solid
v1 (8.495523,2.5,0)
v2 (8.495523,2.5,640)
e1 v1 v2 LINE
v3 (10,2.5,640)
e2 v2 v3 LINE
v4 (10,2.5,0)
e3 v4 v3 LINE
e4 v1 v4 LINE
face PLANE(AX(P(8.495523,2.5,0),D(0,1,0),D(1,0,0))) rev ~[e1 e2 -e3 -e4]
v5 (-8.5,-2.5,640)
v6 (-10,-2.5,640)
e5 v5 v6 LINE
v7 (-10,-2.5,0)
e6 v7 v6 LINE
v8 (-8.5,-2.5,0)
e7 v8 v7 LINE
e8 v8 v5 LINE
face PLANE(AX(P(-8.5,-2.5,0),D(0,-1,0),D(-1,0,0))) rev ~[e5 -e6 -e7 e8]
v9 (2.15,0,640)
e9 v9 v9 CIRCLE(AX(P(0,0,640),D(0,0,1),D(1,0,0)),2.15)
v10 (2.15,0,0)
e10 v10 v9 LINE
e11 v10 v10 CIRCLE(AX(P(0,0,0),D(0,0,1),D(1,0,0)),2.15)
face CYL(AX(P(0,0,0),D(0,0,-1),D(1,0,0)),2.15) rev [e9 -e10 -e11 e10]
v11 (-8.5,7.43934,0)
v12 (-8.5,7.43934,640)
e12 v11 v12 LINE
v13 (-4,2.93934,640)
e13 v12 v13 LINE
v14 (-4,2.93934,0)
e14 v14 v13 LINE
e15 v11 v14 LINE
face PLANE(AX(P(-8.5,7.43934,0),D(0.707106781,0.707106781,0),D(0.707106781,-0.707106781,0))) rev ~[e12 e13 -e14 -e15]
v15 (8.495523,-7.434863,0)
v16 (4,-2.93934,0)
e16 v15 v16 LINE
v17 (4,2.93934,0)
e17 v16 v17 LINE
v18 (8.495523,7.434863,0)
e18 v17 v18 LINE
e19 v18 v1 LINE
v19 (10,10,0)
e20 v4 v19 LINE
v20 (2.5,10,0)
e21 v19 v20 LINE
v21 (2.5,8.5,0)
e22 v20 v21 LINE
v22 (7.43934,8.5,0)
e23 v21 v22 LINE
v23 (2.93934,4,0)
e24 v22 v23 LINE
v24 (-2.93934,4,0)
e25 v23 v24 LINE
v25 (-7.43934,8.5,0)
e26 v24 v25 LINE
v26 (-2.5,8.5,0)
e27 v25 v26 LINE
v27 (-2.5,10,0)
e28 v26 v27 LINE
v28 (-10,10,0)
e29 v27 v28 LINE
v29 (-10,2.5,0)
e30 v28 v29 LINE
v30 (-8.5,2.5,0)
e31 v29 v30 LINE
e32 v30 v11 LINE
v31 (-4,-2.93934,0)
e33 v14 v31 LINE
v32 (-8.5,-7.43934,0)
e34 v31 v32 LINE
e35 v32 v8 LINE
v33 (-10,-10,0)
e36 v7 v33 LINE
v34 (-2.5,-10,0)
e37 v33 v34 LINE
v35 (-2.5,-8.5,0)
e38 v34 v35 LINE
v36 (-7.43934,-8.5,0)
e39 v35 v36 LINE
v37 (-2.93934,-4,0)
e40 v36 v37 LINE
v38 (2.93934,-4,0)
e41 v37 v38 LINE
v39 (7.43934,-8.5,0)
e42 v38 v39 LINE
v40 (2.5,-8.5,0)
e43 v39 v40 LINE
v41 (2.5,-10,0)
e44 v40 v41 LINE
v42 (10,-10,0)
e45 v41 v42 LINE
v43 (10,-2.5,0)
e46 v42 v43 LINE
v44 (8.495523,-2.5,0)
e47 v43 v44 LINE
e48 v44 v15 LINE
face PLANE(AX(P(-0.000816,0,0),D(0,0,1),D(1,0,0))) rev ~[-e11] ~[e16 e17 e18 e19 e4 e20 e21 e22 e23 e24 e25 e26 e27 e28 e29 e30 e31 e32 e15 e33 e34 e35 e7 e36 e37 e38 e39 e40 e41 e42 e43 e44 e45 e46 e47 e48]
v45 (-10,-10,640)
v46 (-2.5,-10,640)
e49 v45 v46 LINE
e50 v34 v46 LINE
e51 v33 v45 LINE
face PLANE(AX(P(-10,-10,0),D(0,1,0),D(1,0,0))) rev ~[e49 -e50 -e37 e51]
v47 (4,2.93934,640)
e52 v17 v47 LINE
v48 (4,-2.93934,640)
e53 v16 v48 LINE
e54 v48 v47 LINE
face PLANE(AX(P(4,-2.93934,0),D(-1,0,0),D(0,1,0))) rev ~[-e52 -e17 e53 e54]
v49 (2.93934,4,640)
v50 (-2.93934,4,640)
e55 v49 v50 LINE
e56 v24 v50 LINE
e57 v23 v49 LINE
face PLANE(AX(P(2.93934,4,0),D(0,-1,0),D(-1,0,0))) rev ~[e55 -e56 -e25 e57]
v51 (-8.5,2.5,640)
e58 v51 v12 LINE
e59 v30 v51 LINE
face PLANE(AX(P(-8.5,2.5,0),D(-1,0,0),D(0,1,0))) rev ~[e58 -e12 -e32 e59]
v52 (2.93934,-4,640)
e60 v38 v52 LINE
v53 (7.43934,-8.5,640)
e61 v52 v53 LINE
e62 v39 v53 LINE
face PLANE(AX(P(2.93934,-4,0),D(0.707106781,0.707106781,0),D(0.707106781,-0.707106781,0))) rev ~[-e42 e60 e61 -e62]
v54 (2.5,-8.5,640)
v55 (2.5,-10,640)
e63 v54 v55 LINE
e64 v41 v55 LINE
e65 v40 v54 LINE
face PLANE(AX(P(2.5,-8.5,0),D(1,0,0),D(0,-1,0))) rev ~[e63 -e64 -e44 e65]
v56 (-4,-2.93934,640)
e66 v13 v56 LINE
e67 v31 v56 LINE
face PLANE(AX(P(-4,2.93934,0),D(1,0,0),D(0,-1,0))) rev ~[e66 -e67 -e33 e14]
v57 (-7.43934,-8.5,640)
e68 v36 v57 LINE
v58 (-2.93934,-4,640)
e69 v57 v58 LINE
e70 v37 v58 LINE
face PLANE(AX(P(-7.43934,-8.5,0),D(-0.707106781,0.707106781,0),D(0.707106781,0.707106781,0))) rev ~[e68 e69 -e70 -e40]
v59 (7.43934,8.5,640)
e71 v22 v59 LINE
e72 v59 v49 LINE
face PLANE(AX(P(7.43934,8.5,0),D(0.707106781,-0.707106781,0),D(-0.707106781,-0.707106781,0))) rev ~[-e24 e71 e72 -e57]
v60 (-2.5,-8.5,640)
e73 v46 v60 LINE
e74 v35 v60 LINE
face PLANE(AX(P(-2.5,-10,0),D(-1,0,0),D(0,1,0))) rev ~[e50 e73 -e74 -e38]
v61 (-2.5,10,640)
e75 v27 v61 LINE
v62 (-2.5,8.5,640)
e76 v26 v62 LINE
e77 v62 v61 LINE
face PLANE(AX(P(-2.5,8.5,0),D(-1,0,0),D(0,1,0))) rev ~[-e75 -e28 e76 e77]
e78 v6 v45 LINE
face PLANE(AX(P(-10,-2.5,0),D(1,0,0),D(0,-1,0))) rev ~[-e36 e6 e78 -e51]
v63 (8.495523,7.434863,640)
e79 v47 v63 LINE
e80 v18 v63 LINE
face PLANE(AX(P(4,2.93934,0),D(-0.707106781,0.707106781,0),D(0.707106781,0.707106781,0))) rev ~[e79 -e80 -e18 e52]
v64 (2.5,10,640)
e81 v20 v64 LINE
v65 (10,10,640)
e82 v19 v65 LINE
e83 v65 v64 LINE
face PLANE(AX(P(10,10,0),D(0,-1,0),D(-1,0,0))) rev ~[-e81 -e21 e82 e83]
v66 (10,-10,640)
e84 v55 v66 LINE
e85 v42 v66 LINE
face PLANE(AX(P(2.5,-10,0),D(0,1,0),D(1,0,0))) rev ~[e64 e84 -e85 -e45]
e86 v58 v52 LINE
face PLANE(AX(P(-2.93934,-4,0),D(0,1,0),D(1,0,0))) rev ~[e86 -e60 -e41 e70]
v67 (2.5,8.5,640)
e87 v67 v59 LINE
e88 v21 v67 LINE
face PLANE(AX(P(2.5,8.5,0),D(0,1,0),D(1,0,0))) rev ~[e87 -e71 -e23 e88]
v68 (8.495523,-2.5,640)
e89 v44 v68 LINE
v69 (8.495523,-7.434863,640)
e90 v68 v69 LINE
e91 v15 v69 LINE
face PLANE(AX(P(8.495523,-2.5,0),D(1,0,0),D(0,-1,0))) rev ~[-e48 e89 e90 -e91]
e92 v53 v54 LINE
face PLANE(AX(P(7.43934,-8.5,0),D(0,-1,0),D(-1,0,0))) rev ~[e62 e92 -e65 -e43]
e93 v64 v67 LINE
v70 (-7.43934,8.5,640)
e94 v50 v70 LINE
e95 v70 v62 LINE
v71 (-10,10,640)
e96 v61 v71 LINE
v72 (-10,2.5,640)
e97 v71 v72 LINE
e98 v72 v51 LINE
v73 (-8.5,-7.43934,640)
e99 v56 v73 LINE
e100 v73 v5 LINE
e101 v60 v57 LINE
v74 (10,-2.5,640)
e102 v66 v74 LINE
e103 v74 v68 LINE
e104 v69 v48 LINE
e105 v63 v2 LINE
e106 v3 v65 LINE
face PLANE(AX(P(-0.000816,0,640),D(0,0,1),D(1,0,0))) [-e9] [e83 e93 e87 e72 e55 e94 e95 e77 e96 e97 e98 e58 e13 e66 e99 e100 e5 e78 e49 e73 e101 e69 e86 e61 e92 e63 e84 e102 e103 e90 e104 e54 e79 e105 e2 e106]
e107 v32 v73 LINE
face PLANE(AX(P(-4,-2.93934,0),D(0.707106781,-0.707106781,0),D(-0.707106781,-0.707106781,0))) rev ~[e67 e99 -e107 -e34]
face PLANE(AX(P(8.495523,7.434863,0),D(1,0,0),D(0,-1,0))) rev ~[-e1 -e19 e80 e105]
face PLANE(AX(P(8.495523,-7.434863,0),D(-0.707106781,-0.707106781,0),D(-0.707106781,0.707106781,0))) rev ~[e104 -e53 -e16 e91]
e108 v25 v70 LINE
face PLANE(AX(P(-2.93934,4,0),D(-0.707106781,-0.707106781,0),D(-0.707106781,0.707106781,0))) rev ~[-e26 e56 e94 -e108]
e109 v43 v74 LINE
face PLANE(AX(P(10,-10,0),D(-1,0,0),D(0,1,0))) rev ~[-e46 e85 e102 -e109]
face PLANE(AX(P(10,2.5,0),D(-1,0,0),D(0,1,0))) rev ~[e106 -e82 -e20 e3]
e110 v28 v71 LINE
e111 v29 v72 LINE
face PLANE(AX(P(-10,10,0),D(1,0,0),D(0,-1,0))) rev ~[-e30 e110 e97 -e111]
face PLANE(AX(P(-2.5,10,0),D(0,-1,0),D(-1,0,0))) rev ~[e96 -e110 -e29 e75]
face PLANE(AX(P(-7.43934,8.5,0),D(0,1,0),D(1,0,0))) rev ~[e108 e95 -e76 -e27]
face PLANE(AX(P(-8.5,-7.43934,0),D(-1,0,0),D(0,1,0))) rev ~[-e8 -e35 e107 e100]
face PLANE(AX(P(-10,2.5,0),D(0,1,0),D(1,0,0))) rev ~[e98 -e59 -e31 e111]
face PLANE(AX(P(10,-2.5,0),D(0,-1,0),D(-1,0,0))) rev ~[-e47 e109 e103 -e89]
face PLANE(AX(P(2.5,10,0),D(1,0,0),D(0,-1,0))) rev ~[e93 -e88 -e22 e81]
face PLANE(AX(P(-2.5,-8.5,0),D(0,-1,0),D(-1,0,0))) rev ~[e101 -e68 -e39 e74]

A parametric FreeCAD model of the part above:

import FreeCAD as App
import Part
import Sketcher

V = App.Vector
Q = App.Units.Quantity


def add_polygon(sketch, points):
    """Adds a closed chain of lines whose ends are joined by coincident constraints."""
    first, n = sketch.GeometryCount, len(points)
    for a, b in zip(points, points[1:] + points[:1]):
        sketch.addGeometry(Part.LineSegment(App.Vector(*a, 0), App.Vector(*b, 0)), False)
    for i in range(n):
        sketch.addConstraint(Sketcher.Constraint("Coincident", first + i, 2, first + (i + 1) % n, 1))

doc = App.newDocument("Part")
body = doc.addObject("PartDesign::Body", "Body")

# Sketch on XY plane
sketch1 = doc.addObject("Sketcher::SketchObject", "Sketch")
body.addObject(sketch1)
sketch1.AttachmentSupport = (doc.XY_Plane, [""])
sketch1.MapMode = "FlatFace"
add_polygon(sketch1, [(-10, -2.5), (-10, -10), (-2.5, -10), (-2.5, -8.5), (-7.4, -8.5), (-2.9, -4), (2.9, -4), (7.4, -8.5), (2.5, -8.5), (2.5, -10), (10, -10), (10, -2.5), (8.5, -2.5), (8.5, -7.4), (4, -2.9), (4, 2.9), (8.5, 7.4), (8.5, 2.5), (10, 2.5), (10, 10), (2.5, 10), (2.5, 8.5), (7.4, 8.5), (2.9, 4), (-2.9, 4), (-7.4, 8.5), (-2.5, 8.5), (-2.5, 10), (-10, 10), (-10, 2.5), (-8.5, 2.5), (-8.5, 7.4), (-4, 2.9), (-4, -2.9), (-8.5, -7.4), (-8.5, -2.5)])  # lines 0-35
sketch1.addGeometry(Part.Circle(V(0, 0, 0), V(0, 0, 1), 2.1), False)  # 36
sketch1.addConstraint([
    Sketcher.Constraint("Vertical", 0),
    Sketcher.Constraint("Horizontal", 1),
    Sketcher.Constraint("Vertical", 2),
    Sketcher.Constraint("Horizontal", 3),
    Sketcher.Constraint("Horizontal", 5),
    Sketcher.Constraint("Horizontal", 7),
    Sketcher.Constraint("Vertical", 8),
    Sketcher.Constraint("Horizontal", 9),
    Sketcher.Constraint("Vertical", 10),
    Sketcher.Constraint("Horizontal", 11),
    Sketcher.Constraint("Vertical", 12),
    Sketcher.Constraint("Vertical", 14),
    Sketcher.Constraint("Vertical", 16),
    Sketcher.Constraint("Horizontal", 17),
    Sketcher.Constraint("Vertical", 18),
    Sketcher.Constraint("Horizontal", 19),
    Sketcher.Constraint("Vertical", 20),
    Sketcher.Constraint("Horizontal", 21),
    Sketcher.Constraint("Horizontal", 23),
    Sketcher.Constraint("Horizontal", 25),
    Sketcher.Constraint("Vertical", 26),
    Sketcher.Constraint("Horizontal", 27),
    Sketcher.Constraint("Vertical", 28),
    Sketcher.Constraint("Horizontal", 29),
    Sketcher.Constraint("Vertical", 30),
    Sketcher.Constraint("Vertical", 32),
    Sketcher.Constraint("Vertical", 34),
    Sketcher.Constraint("Horizontal", 35),
    Sketcher.Constraint("Coincident", 36, 3, -1, 1),
    Sketcher.Constraint("Symmetric", 0, 2, 18, 2, -1, 1),
    Sketcher.Constraint("Symmetric", 2, 2, 20, 2, -1, 1),
    Sketcher.Constraint("Symmetric", 4, 2, 22, 2, -1, 1),
    Sketcher.Constraint("Symmetric", 6, 2, 24, 2, -1, 1),
    Sketcher.Constraint("Symmetric", 8, 2, 26, 2, -1, 1),
    Sketcher.Constraint("Symmetric", 10, 2, 28, 2, -1, 1),
    Sketcher.Constraint("Symmetric", 13, 2, 31, 2, -1, 1),
    Sketcher.Constraint("Symmetric", 3, 2, 6, 2, -2),
    Sketcher.Constraint("Symmetric", 1, 2, 8, 2, -2),
    Sketcher.Constraint("Symmetric", 17, 2, 28, 2, -2),
    Sketcher.Constraint("Symmetric", 12, 2, 15, 2, -1),
    Sketcher.Constraint("Symmetric", 30, 2, 33, 2, -1),
    Sketcher.Constraint("Perpendicular", 4, 6),
    Sketcher.Constraint("Parallel", 6, 13),
    Sketcher.Constraint("Perpendicular", 13, 15),
    Sketcher.Constraint("Parallel", 15, 22),
    Sketcher.Constraint("Perpendicular", 22, 24),
    Sketcher.Constraint("Parallel", 24, 31),
    Sketcher.Constraint("Perpendicular", 31, 33),
    Sketcher.Constraint("Horizontal", 14, 2, 31, 2),
    Sketcher.Constraint("Horizontal", 11, 2, 34, 2),
    Sketcher.Constraint("Equal", 27, 0),
    Sketcher.Constraint("Equal", 35, 2),
    Sketcher.Constraint("Equal", 23, 14),
    Sketcher.Constraint("Equal", 25, 30),
    Sketcher.Constraint("Equal", 24, 31),
    Sketcher.Constraint("Diameter", 36, Q("4.3 mm")),
    Sketcher.Constraint("DistanceX", 1, 1, 1, 2, Q("7.5 mm")),
    Sketcher.Constraint("DistanceX", 29, 1, 29, 2, Q("1.5 mm")),
    Sketcher.Constraint("DistanceX", 0, 2, -1, 1, Q("10 mm")),
    Sketcher.Constraint("DistanceY", 4, 2, -1, 1, Q("4 mm")),
    Sketcher.Constraint("DistanceX", 3, 2, 3, 1, Q("4.93934 mm")),
    Sketcher.Constraint("Distance", 13, Q("6.35763 mm")),
])
pad1 = doc.addObject("PartDesign::Pad", "Pad")
body.addObject(pad1)
pad1.Profile = sketch1
pad1.Length = 640

doc.recompute()
